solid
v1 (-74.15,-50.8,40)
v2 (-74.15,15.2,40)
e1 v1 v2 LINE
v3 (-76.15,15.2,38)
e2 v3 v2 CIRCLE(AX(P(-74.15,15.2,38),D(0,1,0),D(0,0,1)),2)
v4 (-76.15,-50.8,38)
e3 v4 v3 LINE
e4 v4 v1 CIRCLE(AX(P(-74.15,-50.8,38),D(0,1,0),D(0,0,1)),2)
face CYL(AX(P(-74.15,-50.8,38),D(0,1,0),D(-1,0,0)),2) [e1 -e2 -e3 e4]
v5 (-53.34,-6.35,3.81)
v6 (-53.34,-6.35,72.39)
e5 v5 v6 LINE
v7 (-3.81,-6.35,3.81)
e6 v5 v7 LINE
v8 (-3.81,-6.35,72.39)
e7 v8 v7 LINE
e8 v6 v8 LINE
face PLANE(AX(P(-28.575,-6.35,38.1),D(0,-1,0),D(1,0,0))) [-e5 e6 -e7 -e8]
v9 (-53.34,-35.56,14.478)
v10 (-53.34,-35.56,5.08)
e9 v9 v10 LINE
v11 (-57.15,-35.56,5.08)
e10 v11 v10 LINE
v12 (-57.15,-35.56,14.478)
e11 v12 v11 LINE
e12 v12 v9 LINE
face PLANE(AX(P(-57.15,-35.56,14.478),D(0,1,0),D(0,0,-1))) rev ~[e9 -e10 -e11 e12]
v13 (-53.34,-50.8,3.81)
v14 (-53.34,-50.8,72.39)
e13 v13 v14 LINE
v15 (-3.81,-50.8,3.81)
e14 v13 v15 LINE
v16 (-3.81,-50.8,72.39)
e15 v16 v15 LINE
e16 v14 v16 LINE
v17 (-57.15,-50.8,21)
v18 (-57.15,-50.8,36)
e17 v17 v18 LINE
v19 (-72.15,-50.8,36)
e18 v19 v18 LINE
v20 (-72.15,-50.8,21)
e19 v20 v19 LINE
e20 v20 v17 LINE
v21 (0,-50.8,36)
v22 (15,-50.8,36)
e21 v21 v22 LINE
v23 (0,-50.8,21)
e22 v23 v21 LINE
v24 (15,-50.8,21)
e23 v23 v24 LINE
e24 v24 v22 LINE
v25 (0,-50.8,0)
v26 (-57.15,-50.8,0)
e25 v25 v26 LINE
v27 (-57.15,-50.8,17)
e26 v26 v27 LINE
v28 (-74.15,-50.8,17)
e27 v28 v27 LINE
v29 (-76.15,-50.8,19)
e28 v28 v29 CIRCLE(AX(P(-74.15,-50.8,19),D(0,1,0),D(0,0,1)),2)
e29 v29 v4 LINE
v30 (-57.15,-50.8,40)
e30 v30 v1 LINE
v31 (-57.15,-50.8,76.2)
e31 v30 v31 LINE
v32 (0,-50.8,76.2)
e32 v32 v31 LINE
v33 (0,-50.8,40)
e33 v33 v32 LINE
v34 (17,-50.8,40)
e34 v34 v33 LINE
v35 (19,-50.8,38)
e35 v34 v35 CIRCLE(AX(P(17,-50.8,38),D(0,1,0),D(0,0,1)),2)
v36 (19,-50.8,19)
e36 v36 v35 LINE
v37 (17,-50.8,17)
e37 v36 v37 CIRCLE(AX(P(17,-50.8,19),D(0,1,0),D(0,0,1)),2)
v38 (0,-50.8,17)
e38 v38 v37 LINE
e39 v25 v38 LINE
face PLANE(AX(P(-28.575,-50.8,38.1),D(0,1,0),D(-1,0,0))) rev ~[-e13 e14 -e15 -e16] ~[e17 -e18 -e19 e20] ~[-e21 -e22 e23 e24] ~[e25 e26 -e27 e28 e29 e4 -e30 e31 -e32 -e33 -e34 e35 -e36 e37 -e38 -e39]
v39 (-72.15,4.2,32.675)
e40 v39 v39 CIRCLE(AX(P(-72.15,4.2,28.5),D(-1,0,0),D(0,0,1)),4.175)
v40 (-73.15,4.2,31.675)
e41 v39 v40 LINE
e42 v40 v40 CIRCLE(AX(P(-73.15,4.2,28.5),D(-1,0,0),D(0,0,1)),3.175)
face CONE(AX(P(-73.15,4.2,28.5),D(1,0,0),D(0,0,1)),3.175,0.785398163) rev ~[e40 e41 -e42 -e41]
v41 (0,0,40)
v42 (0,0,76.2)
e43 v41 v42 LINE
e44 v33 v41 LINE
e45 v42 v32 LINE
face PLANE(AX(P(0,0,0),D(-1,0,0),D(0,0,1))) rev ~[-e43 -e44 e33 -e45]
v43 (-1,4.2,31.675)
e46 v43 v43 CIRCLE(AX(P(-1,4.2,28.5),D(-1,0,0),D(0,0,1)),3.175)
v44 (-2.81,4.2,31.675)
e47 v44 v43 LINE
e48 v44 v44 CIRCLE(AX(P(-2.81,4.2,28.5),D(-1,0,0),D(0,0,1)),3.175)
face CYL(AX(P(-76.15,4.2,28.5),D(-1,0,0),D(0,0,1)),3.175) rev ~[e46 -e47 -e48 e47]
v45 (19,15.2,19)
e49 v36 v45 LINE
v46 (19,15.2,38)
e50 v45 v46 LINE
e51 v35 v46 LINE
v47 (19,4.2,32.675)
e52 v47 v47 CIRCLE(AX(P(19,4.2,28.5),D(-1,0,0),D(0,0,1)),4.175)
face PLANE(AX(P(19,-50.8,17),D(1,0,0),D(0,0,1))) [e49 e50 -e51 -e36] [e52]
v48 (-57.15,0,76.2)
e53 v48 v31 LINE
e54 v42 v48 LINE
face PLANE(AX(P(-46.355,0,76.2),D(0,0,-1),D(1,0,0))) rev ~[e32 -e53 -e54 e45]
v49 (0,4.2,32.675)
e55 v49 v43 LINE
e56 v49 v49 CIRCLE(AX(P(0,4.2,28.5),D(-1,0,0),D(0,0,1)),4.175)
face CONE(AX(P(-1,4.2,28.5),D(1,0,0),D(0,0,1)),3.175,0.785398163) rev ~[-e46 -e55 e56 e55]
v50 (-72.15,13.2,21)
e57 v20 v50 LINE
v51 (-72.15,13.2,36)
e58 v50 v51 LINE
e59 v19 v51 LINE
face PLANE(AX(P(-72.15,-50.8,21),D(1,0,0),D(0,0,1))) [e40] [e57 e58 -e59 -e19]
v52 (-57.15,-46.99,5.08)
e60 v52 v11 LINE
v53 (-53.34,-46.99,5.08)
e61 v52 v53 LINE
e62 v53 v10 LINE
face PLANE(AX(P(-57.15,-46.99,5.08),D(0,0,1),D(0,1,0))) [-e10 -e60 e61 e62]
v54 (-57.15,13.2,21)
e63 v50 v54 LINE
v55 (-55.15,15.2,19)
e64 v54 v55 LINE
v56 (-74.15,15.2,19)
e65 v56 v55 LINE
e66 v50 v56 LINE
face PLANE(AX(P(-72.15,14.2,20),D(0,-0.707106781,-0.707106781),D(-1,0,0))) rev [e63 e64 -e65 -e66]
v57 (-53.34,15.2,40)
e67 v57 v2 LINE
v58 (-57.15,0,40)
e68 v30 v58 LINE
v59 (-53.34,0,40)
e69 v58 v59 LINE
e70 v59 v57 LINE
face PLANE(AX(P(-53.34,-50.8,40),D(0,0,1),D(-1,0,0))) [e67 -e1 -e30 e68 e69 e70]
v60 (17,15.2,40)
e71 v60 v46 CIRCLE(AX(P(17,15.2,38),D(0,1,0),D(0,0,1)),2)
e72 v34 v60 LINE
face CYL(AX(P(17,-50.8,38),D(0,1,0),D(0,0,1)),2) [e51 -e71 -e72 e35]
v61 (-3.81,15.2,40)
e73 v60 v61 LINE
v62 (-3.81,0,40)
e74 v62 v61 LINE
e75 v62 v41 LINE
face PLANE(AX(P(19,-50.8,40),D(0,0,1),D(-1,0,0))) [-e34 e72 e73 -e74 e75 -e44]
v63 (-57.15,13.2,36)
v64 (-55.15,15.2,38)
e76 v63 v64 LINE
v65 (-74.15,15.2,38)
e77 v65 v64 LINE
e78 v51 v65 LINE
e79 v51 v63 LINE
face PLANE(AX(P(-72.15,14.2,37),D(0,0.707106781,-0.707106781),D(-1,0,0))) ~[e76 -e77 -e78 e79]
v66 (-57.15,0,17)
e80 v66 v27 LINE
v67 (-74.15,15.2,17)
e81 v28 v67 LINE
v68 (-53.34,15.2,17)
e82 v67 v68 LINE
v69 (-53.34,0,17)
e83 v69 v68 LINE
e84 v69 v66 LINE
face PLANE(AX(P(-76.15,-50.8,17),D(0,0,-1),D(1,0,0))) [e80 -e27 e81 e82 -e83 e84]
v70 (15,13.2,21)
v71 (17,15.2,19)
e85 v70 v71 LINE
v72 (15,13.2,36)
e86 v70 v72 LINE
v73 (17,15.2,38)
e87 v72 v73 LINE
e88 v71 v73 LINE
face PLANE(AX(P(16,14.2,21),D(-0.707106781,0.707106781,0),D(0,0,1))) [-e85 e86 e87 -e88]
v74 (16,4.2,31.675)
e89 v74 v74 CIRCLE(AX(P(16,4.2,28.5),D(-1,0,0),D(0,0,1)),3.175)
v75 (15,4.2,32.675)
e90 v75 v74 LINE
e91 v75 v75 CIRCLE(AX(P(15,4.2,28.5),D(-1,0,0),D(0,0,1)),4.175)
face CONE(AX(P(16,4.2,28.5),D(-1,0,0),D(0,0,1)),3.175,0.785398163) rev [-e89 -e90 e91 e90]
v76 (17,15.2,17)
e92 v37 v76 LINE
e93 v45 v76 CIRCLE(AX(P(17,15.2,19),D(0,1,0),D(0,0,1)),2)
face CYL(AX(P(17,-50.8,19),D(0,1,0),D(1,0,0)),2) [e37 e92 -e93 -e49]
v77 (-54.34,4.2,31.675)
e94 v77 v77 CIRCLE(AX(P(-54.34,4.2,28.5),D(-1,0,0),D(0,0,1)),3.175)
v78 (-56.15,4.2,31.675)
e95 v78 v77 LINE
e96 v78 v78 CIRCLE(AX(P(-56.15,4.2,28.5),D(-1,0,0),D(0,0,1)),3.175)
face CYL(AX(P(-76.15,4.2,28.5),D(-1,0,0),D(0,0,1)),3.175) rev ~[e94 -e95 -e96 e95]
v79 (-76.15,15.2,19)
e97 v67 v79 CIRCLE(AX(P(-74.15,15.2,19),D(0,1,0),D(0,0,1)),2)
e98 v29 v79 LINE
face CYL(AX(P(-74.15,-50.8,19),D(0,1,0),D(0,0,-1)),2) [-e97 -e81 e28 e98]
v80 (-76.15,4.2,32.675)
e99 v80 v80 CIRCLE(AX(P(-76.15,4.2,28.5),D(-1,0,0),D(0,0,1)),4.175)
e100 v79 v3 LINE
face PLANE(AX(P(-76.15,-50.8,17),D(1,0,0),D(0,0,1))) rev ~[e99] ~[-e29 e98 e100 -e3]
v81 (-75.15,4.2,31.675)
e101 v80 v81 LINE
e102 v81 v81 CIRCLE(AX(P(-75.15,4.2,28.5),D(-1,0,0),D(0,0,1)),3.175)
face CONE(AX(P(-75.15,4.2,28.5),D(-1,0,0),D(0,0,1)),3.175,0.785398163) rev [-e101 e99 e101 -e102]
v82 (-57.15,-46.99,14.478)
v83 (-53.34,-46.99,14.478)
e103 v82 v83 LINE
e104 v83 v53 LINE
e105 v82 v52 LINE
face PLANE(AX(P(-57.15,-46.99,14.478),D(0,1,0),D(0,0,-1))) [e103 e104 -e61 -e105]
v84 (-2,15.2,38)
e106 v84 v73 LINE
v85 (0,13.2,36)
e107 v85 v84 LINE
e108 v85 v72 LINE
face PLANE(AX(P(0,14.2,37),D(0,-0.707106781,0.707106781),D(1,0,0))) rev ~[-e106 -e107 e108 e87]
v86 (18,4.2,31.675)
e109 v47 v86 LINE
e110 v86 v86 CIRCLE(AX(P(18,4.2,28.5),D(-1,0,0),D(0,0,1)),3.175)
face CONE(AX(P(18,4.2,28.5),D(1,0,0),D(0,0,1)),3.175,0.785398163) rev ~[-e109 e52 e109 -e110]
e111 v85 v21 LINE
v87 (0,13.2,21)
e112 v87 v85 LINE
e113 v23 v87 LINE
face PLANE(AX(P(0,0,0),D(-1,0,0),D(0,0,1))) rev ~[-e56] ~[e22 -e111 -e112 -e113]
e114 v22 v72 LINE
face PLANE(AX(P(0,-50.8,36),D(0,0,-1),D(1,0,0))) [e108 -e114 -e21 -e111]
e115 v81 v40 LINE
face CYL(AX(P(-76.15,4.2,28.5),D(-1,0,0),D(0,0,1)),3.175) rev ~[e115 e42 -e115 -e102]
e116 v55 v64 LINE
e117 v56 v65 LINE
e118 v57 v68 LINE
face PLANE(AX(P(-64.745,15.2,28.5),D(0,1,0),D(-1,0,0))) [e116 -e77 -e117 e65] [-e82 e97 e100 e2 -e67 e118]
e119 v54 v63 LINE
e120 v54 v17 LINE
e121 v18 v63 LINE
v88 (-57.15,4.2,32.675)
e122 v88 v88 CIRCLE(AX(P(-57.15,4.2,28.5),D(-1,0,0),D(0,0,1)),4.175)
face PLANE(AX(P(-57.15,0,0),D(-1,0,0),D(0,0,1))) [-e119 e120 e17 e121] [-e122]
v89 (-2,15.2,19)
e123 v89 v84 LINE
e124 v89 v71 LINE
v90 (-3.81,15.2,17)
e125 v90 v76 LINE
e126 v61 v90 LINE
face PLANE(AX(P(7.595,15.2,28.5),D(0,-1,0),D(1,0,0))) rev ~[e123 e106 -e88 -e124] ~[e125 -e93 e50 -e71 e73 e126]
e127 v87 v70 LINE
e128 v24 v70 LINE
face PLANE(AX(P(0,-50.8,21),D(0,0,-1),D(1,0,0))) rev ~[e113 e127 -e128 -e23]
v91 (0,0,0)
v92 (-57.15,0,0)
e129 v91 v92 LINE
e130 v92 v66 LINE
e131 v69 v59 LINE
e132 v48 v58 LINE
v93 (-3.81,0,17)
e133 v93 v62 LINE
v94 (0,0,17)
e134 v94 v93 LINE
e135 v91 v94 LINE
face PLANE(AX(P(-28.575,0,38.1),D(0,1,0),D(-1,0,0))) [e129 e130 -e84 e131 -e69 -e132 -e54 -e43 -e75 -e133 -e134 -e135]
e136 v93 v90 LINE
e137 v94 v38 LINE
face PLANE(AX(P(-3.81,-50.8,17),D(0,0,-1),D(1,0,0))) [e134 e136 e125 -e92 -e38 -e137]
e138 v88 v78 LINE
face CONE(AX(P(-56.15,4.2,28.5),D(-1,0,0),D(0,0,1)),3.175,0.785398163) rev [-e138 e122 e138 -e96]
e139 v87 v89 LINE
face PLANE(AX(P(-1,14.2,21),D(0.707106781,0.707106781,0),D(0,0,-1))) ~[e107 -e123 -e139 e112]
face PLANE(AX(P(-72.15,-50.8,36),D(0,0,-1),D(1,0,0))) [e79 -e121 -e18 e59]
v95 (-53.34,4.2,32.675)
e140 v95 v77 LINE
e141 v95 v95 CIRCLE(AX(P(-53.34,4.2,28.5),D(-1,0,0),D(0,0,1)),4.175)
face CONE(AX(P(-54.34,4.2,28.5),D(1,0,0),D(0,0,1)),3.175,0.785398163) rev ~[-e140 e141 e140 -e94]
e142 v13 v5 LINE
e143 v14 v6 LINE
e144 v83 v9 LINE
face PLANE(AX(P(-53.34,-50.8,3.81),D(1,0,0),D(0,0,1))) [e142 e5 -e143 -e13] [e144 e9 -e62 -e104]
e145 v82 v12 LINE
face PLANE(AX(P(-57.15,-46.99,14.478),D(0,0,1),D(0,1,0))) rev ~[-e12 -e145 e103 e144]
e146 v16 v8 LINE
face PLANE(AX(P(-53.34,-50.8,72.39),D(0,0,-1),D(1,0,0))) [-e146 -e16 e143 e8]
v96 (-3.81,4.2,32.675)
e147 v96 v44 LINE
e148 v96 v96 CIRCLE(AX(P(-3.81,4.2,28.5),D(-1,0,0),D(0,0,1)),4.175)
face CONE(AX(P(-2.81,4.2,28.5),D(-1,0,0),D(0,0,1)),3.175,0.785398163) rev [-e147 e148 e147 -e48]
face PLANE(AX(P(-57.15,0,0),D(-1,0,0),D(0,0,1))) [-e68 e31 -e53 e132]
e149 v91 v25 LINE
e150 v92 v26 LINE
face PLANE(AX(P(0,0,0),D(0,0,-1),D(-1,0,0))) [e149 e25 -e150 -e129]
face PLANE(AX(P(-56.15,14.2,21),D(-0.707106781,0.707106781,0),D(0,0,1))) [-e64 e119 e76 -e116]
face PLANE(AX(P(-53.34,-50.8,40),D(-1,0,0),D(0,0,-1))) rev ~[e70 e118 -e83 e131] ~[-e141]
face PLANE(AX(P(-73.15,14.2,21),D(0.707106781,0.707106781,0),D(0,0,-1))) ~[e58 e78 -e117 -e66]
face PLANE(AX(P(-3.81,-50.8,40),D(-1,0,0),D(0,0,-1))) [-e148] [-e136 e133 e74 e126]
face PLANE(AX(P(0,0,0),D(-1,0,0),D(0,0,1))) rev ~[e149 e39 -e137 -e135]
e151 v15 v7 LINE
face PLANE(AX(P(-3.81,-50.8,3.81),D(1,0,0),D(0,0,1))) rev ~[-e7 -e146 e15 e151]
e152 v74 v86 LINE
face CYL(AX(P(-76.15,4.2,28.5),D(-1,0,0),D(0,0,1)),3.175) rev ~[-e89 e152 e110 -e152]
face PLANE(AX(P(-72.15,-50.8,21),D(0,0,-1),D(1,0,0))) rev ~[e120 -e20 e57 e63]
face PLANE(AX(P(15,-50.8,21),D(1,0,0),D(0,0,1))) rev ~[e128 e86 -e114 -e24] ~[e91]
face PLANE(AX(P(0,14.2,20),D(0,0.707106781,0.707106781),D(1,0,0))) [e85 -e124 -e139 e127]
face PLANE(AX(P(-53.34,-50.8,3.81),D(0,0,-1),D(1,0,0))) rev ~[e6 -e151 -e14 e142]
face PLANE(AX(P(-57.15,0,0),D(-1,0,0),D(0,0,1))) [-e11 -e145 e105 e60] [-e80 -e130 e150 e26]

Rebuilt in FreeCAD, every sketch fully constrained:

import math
import FreeCAD as App
import Part
import Sketcher
from FreeCAD import Vector
Q = App.Units.Quantity


def edges_at(feature, points):
    """Names of the edges that pass closest to the given points."""
    edges = feature.Shape.Edges
    near = lambda p: min(range(len(edges)), key=lambda i: edges[i].distToShape(Part.Vertex(*p))[0])
    return sorted({f"Edge{near(p) + 1}" for p in points})

doc = App.newDocument("Part")
params = doc.addObject("Spreadsheet::Sheet", "Params")
for row, (alias, value) in enumerate([
    ("sketch1_height", "3 in"),
    ("sketch1_width", "2.25 in"),
    ("pad1_length", "2 in"),
    ("sketch2_height", "2.7 in"),
    ("sketch2_width", "1.95 in"),
    ("pocket1_length", "1.75 in"),
    ("sketch3_width", "0.45 in"),
    ("sketch3_height", "0.37 in"),
    ("sketch4_width", "0.1 in"),
    ("sketch4_width2", "1.45 in"),
    ("pad2_length", "2.25 in"),
    ("sketch9_radius", "0.35 in"),
    ("sketch10_width", "0.3 in"),
    ("pad3_length", "1.75 in"),
    ("pad4_length", "66 mm"),
    ("sketch12_diameter", "0.25 in"),
    ("chamfer_size", "2 mm"),
    ("fillet_radius", "2 mm"),
    ("chamfer2_size", "1 mm"),
    ("sketch13_width", "1.35 in"),
], start=1):
    params.set(f"A{row}", alias)
    params.set(f"B{row}", "=" + value)
    params.setAlias(f"B{row}", alias)

body = doc.addObject("PartDesign::Body", "Body")

sketch1 = body.newObject("Sketcher::SketchObject", "Sketch")
sketch1.AttachmentSupport = (doc.getObject("XZ_Plane"), [""])
sketch1.MapMode = "FlatFace"
sketch1.addGeometry([
    Part.LineSegment(Vector(0, 76, 0), Vector(0, 0, 0)),
    Part.LineSegment(Vector(0, 0, 0), Vector(-57, 0, 0)),
    Part.LineSegment(Vector(-57, 0, 0), Vector(-57, 76, 0)),
    Part.LineSegment(Vector(-57, 76, 0), Vector(0, 76, 0)),
], False)
sketch1.addConstraint([
    Sketcher.Constraint("Coincident", 0, 2, 1, 1),
    Sketcher.Constraint("Coincident", 1, 2, 2, 1),
    Sketcher.Constraint("Coincident", 2, 2, 3, 1),
    Sketcher.Constraint("Coincident", 3, 2, 0, 1),
    Sketcher.Constraint("Vertical", 0),
    Sketcher.Constraint("Horizontal", 1),
    Sketcher.Constraint("Vertical", 2),
    Sketcher.Constraint("Horizontal", 3),
    Sketcher.Constraint("Coincident", 0, 2, -1, 1),
    Sketcher.Constraint("DistanceY", 0, 2, 0, 1, Q("3 in")),
    Sketcher.Constraint("DistanceX", 1, 2, 1, 1, Q("2.25 in")),
])
sketch1.setExpression("Constraints[9]", "Params.sketch1_height")
sketch1.setExpression("Constraints[10]", "Params.sketch1_width")
pad1 = body.newObject("PartDesign::Pad", "Pad")
pad1.Profile = sketch1
pad1.setExpression("Length", "Params.pad1_length")

sketch2 = body.newObject("Sketcher::SketchObject", "Sketch001")
sketch2.AttachmentSupport = (doc.getObject("XZ_Plane"), [""])
sketch2.MapMode = "FlatFace"
sketch2.AttachmentOffset = App.Placement(Vector(0, 0, 2 * 25.4), App.Rotation())
sketch2.addGeometry([
    Part.LineSegment(Vector(-53, 72, 0), Vector(-53, 4, 0)),
    Part.LineSegment(Vector(-53, 4, 0), Vector(-4, 4, 0)),
    Part.LineSegment(Vector(-4, 4, 0), Vector(-4, 72, 0)),
    Part.LineSegment(Vector(-4, 72, 0), Vector(-53, 72, 0)),
], False)
sketch2.addConstraint([
    Sketcher.Constraint("Coincident", 0, 2, 1, 1),
    Sketcher.Constraint("Coincident", 1, 2, 2, 1),
    Sketcher.Constraint("Coincident", 2, 2, 3, 1),
    Sketcher.Constraint("Coincident", 3, 2, 0, 1),
    Sketcher.Constraint("Vertical", 0),
    Sketcher.Constraint("Horizontal", 1),
    Sketcher.Constraint("Vertical", 2),
    Sketcher.Constraint("Horizontal", 3),
    Sketcher.Constraint("DistanceY", 0, 2, 0, 1, Q("2.7 in")),
    Sketcher.Constraint("DistanceX", 1, 1, 1, 2, Q("1.95 in")),
    Sketcher.Constraint("DistanceX", 0, 2, -1, 1, Q("2.1 in")),
    Sketcher.Constraint("DistanceY", -1, 1, 0, 2, Q("0.15 in")),
])
sketch2.setExpression("Constraints[8]", "Params.sketch2_height")
sketch2.setExpression("Constraints[9]", "Params.sketch2_width")
pocket1 = body.newObject("PartDesign::Pocket", "Pocket")
pocket1.Profile = sketch2
pocket1.setExpression("Length", "Params.pocket1_length")

sketch3 = body.newObject("Sketcher::SketchObject", "Sketch002")
sketch3.AttachmentSupport = (doc.getObject("YZ_Plane"), [""])
sketch3.MapMode = "FlatFace"
sketch3.AttachmentOffset = App.Placement(Vector(0, 0, -2.25 * 25.4), App.Rotation())
sketch3.addGeometry([
    Part.LineSegment(Vector(-36, 14, 0), Vector(-47, 14, 0)),
    Part.LineSegment(Vector(-47, 14, 0), Vector(-47, 5, 0)),
    Part.LineSegment(Vector(-47, 5, 0), Vector(-36, 5, 0)),
    Part.LineSegment(Vector(-36, 5, 0), Vector(-36, 14, 0)),
], False)
sketch3.addConstraint([
    Sketcher.Constraint("Coincident", 0, 2, 1, 1),
    Sketcher.Constraint("Coincident", 1, 2, 2, 1),
    Sketcher.Constraint("Coincident", 2, 2, 3, 1),
    Sketcher.Constraint("Coincident", 3, 2, 0, 1),
    Sketcher.Constraint("Horizontal", 0),
    Sketcher.Constraint("Vertical", 1),
    Sketcher.Constraint("Horizontal", 2),
    Sketcher.Constraint("Vertical", 3),
    Sketcher.Constraint("DistanceX", 0, 2, 0, 1, Q("0.45 in")),
    Sketcher.Constraint("DistanceY", 1, 2, 1, 1, Q("0.37 in")),
    Sketcher.Constraint("DistanceY", -1, 1, 1, 2, Q("0.2 in")),
    Sketcher.Constraint("DistanceX", 2, 2, -1, 1, Q("1.4 in")),
])
sketch3.setExpression("Constraints[8]", "Params.sketch3_width")
sketch3.setExpression("Constraints[9]", "Params.sketch3_height")
pocket2 = body.newObject("PartDesign::Pocket", "Pocket001")
pocket2.Profile = sketch3
pocket2.Type = "UpToFirst"
pocket2.Reversed = True

sketch4 = body.newObject("Sketcher::SketchObject", "Sketch003")
sketch4.AttachmentSupport = (doc.getObject("YZ_Plane"), [""])
sketch4.MapMode = "FlatFace"
sketch4.AttachmentOffset = App.Placement(Vector(0, 0, -2.25 * 25.4), App.Rotation())
sketch4.addGeometry([
    Part.LineSegment(Vector(0, 46.5, 0), Vector(36.8, 46.5, 0)),
    Part.LineSegment(Vector(36.8, 46.5, 0), Vector(36.8, 0, 0)),
    Part.LineSegment(Vector(36.8, 0, 0), Vector(34.3, 0, 0)),
    Part.LineSegment(Vector(34.3, 0, 0), Vector(34.3, 44, 0)),
    Part.LineSegment(Vector(34.3, 44, 0), Vector(0, 44, 0)),
    Part.LineSegment(Vector(0, 44, 0), Vector(0, 46.5, 0)),
], False)
sketch4.addConstraint([
    Sketcher.Constraint("Coincident", 0, 2, 1, 1),
    Sketcher.Constraint("Coincident", 1, 2, 2, 1),
    Sketcher.Constraint("Coincident", 2, 2, 3, 1),
    Sketcher.Constraint("Coincident", 3, 2, 4, 1),
    Sketcher.Constraint("Coincident", 4, 2, 5, 1),
    Sketcher.Constraint("Coincident", 5, 2, 0, 1),
    Sketcher.Constraint("Horizontal", 0),
    Sketcher.Constraint("Vertical", 1),
    Sketcher.Constraint("Horizontal", 2),
    Sketcher.Constraint("Vertical", 3),
    Sketcher.Constraint("Horizontal", 4),
    Sketcher.Constraint("Vertical", 5),
    Sketcher.Constraint("PointOnObject", 1, 2, -1),
    Sketcher.Constraint("PointOnObject", 4, 2, -2),
    Sketcher.Constraint("Equal", 2, 5),
    Sketcher.Constraint("DistanceX", 2, 2, 2, 1, Q("0.1 in")),
    Sketcher.Constraint("DistanceX", 0, 1, 0, 2, Q("1.45 in")),
    Sketcher.Constraint("DistanceY", 1, 2, 1, 1, Q("46.54 mm")),
])
sketch4.setExpression("Constraints[15]", "Params.sketch4_width")
sketch4.setExpression("Constraints[16]", "Params.sketch4_width2")
pad2 = body.newObject("PartDesign::Pad", "Pad001")
pad2.Profile = sketch4
pad2.setExpression("Length", "Params.pad2_length")

sketch5 = body.newObject("Sketcher::SketchObject", "Sketch004")
sketch5.AttachmentSupport = (doc.getObject("XZ_Plane"), [""])
sketch5.MapMode = "FlatFace"
sketch5.AttachmentOffset = App.Placement(Vector(0, 0, -1.45 * 25.4), App.Rotation())
sketch5.addGeometry(Part.Circle(Vector(-44.1, 7.8, 0), Vector(0, 0, 1), 1.6), False)
sketch5.addConstraint([
    Sketcher.Constraint("Diameter", 0, Q("3.2 mm")),
    Sketcher.Constraint("DistanceX", 0, 3, -1, 1, Q("44.075 mm")),
    Sketcher.Constraint("DistanceY", -1, 1, 0, 3, Q("7.77 mm")),
])
pocket3 = body.newObject("PartDesign::Pocket", "Pocket002")
pocket3.Profile = sketch5
pocket3.Type = "UpToFirst"
pocket3.Reversed = True

sketch6 = body.newObject("Sketcher::SketchObject", "Sketch005")
sketch6.AttachmentSupport = (doc.getObject("XZ_Plane"), [""])
sketch6.MapMode = "FlatFace"
sketch6.AttachmentOffset = App.Placement(Vector(0, 0, -1.45 * 25.4), App.Rotation())
sketch6.addGeometry(Part.Circle(Vector(-13.1, 7.8, 0), Vector(0, 0, 1), 1.6), False)
sketch6.addConstraint([
    Sketcher.Constraint("Diameter", 0, Q("3.2 mm")),
    Sketcher.Constraint("DistanceX", 0, 3, -1, 1, Q("13.075 mm")),
    Sketcher.Constraint("DistanceY", -1, 1, 0, 3, Q("7.77 mm")),
])
pocket4 = body.newObject("PartDesign::Pocket", "Pocket003")
pocket4.Profile = sketch6
pocket4.Type = "UpToFirst"
pocket4.Reversed = True

sketch7 = body.newObject("Sketcher::SketchObject", "Sketch006")
sketch7.AttachmentSupport = (doc.getObject("XZ_Plane"), [""])
sketch7.MapMode = "FlatFace"
sketch7.AttachmentOffset = App.Placement(Vector(0, 0, -1.45 * 25.4), App.Rotation())
sketch7.addGeometry(Part.Circle(Vector(-13.1, 38.8, 0), Vector(0, 0, 1), 1.6), False)
sketch7.addConstraint([
    Sketcher.Constraint("Diameter", 0, Q("3.2 mm")),
    Sketcher.Constraint("DistanceX", 0, 3, -1, 1, Q("13.075 mm")),
    Sketcher.Constraint("DistanceY", -1, 1, 0, 3, Q("38.77 mm")),
])
pocket5 = body.newObject("PartDesign::Pocket", "Pocket004")
pocket5.Profile = sketch7
pocket5.Type = "UpToFirst"
pocket5.Reversed = True

sketch8 = body.newObject("Sketcher::SketchObject", "Sketch007")
sketch8.AttachmentSupport = (doc.getObject("XZ_Plane"), [""])
sketch8.MapMode = "FlatFace"
sketch8.AttachmentOffset = App.Placement(Vector(0, 0, -1.45 * 25.4), App.Rotation())
sketch8.addGeometry(Part.Circle(Vector(-44.1, 38.8, 0), Vector(0, 0, 1), 1.6), False)
sketch8.addConstraint([
    Sketcher.Constraint("Diameter", 0, Q("3.2 mm")),
    Sketcher.Constraint("DistanceX", 0, 3, -1, 1, Q("44.075 mm")),
    Sketcher.Constraint("DistanceY", -1, 1, 0, 3, Q("38.77 mm")),
])
pocket6 = body.newObject("PartDesign::Pocket", "Pocket005")
pocket6.Profile = sketch8
pocket6.Type = "UpToFirst"
pocket6.Reversed = True

sketch9 = body.newObject("Sketcher::SketchObject", "Sketch008")
sketch9.AttachmentSupport = (doc.getObject("XZ_Plane"), [""])
sketch9.MapMode = "FlatFace"
sketch9.AttachmentOffset = App.Placement(Vector(0, 0, -1.45 * 25.4), App.Rotation())
sketch9.addGeometry([
    Part.LineSegment(Vector(-20, 0, 0), Vector(-37, 0, 0)),
    Part.LineSegment(Vector(-37, 0, 0), Vector(-37, 23, 0)),
    Part.ArcOfCircle(Part.Circle(Vector(-29, 23, 0), Vector(0, 0, 1), 9), math.radians(0), math.radians(180)),
    Part.LineSegment(Vector(-20, 23, 0), Vector(-20, 0, 0)),
], False)
sketch9.addConstraint([
    Sketcher.Constraint("Coincident", 0, 2, 1, 1),
    Sketcher.Constraint("Tangent", 1, 2, 2, 2),
    Sketcher.Constraint("Tangent", 2, 1, 3, 1),
    Sketcher.Constraint("Coincident", 3, 2, 0, 1),
    Sketcher.Constraint("Horizontal", 0),
    Sketcher.Constraint("Vertical", 1),
    Sketcher.Constraint("Vertical", 3),
    Sketcher.Constraint("PointOnObject", 0, 2, -1),
    Sketcher.Constraint("Radius", 2, Q("0.35 in")),
    Sketcher.Constraint("DistanceX", 2, 3, -1, 1, Q("1.125 in")),
    Sketcher.Constraint("DistanceY", 1, 1, 1, 2, Q("23.27 mm")),
])
sketch9.setExpression("Constraints[8]", "Params.sketch9_radius")
pocket7 = body.newObject("PartDesign::Pocket", "Pocket006")
pocket7.Profile = sketch9
pocket7.Type = "UpToFirst"
pocket7.Reversed = True

sketch10 = body.newObject("Sketcher::SketchObject", "Sketch009")
sketch10.AttachmentSupport = (doc.getObject("XZ_Plane"), [""])
sketch10.MapMode = "FlatFace"
sketch10.addGeometry([
    Part.LineSegment(Vector(-46, 47, 0), Vector(-46, 76, 0)),
    Part.LineSegment(Vector(-46, 76, 0), Vector(-39, 76, 0)),
    Part.LineSegment(Vector(-39, 76, 0), Vector(-39, 47, 0)),
    Part.LineSegment(Vector(-39, 47, 0), Vector(-46, 47, 0)),
    Part.LineSegment(Vector(-18, 47, 0), Vector(-18, 76, 0)),
    Part.LineSegment(Vector(-18, 76, 0), Vector(-11, 76, 0)),
    Part.LineSegment(Vector(-11, 76, 0), Vector(-11, 47, 0)),
    Part.LineSegment(Vector(-11, 47, 0), Vector(-18, 47, 0)),
], False)
sketch10.addConstraint([
    Sketcher.Constraint("Coincident", 0, 2, 1, 1),
    Sketcher.Constraint("Coincident", 1, 2, 2, 1),
    Sketcher.Constraint("Coincident", 2, 2, 3, 1),
    Sketcher.Constraint("Coincident", 3, 2, 0, 1),
    Sketcher.Constraint("Coincident", 4, 2, 5, 1),
    Sketcher.Constraint("Coincident", 5, 2, 6, 1),
    Sketcher.Constraint("Coincident", 6, 2, 7, 1),
    Sketcher.Constraint("Coincident", 7, 2, 4, 1),
    Sketcher.Constraint("Vertical", 0),
    Sketcher.Constraint("Horizontal", 1),
    Sketcher.Constraint("Vertical", 2),
    Sketcher.Constraint("Horizontal", 3),
    Sketcher.Constraint("Vertical", 4),
    Sketcher.Constraint("Horizontal", 5),
    Sketcher.Constraint("Vertical", 6),
    Sketcher.Constraint("Horizontal", 7),
    Sketcher.Constraint("Horizontal", 1, 2, 4, 2),
    Sketcher.Constraint("Horizontal", 3, 2, 6, 2),
    Sketcher.Constraint("Equal", 3, 5),
    Sketcher.Constraint("DistanceX", 1, 1, 1, 2, Q("0.3 in")),
    Sketcher.Constraint("DistanceY", -1, 1, 0, 2, Q("3 in")),
    Sketcher.Constraint("DistanceX", 1, 2, 4, 2, Q("0.8 in")),
    Sketcher.Constraint("DistanceX", 0, 2, -1, 1, Q("1.825 in")),
    Sketcher.Constraint("DistanceY", 0, 1, 0, 2, Q("29.66 mm")),
])
sketch10.setExpression("Constraints[19]", "Params.sketch10_width")
pad3 = body.newObject("PartDesign::Pad", "Pad002")
pad3.Profile = sketch10
pad3.setExpression("Length", "Params.pad3_length")
pad3.Reversed = True

sketch11 = body.newObject("Sketcher::SketchObject", "Sketch010")
sketch11.AttachmentSupport = (doc.getObject("XZ_Plane"), [""])
sketch11.MapMode = "FlatFace"
sketch11.AttachmentOffset = App.Placement(Vector(0, 0, 2 * 25.4), App.Rotation())
sketch11.addGeometry([
    Part.LineSegment(Vector(-4, 40, 0), Vector(-4, 17, 0)),
    Part.LineSegment(Vector(-4, 17, 0), Vector(19, 17, 0)),
    Part.LineSegment(Vector(19, 17, 0), Vector(19, 40, 0)),
    Part.LineSegment(Vector(19, 40, 0), Vector(-4, 40, 0)),
    Part.LineSegment(Vector(15, 21, 0), Vector(0, 21, 0)),
    Part.LineSegment(Vector(0, 21, 0), Vector(0, 36, 0)),
    Part.LineSegment(Vector(0, 36, 0), Vector(15, 36, 0)),
    Part.LineSegment(Vector(15, 36, 0), Vector(15, 21, 0)),
    Part.LineSegment(Vector(-76, 17, 0), Vector(-53, 17, 0)),
    Part.LineSegment(Vector(-53, 17, 0), Vector(-53, 40, 0)),
    Part.LineSegment(Vector(-53, 40, 0), Vector(-76, 40, 0)),
    Part.LineSegment(Vector(-76, 40, 0), Vector(-76, 17, 0)),
    Part.LineSegment(Vector(-72, 21, 0), Vector(-72, 36, 0)),
    Part.LineSegment(Vector(-72, 36, 0), Vector(-57, 36, 0)),
    Part.LineSegment(Vector(-57, 36, 0), Vector(-57, 21, 0)),
    Part.LineSegment(Vector(-57, 21, 0), Vector(-72, 21, 0)),
], False)
sketch11.addConstraint([
    Sketcher.Constraint("Coincident", 0, 2, 1, 1),
    Sketcher.Constraint("Coincident", 1, 2, 2, 1),
    Sketcher.Constraint("Coincident", 2, 2, 3, 1),
    Sketcher.Constraint("Coincident", 3, 2, 0, 1),
    Sketcher.Constraint("Coincident", 4, 2, 5, 1),
    Sketcher.Constraint("Coincident", 5, 2, 6, 1),
    Sketcher.Constraint("Coincident", 6, 2, 7, 1),
    Sketcher.Constraint("Coincident", 7, 2, 4, 1),
    Sketcher.Constraint("Coincident", 8, 2, 9, 1),
    Sketcher.Constraint("Coincident", 9, 2, 10, 1),
    Sketcher.Constraint("Coincident", 10, 2, 11, 1),
    Sketcher.Constraint("Coincident", 11, 2, 8, 1),
    Sketcher.Constraint("Coincident", 12, 2, 13, 1),
    Sketcher.Constraint("Coincident", 13, 2, 14, 1),
    Sketcher.Constraint("Coincident", 14, 2, 15, 1),
    Sketcher.Constraint("Coincident", 15, 2, 12, 1),
    Sketcher.Constraint("Vertical", 0),
    Sketcher.Constraint("Horizontal", 1),
    Sketcher.Constraint("Vertical", 2),
    Sketcher.Constraint("Horizontal", 3),
    Sketcher.Constraint("Horizontal", 4),
    Sketcher.Constraint("Vertical", 5),
    Sketcher.Constraint("Horizontal", 6),
    Sketcher.Constraint("Vertical", 7),
    Sketcher.Constraint("Horizontal", 8),
    Sketcher.Constraint("Vertical", 9),
    Sketcher.Constraint("Horizontal", 10),
    Sketcher.Constraint("Vertical", 11),
    Sketcher.Constraint("Vertical", 12),
    Sketcher.Constraint("Horizontal", 13),
    Sketcher.Constraint("Vertical", 14),
    Sketcher.Constraint("Horizontal", 15),
    Sketcher.Constraint("PointOnObject", 4, 2, -2),
    Sketcher.Constraint("Horizontal", 1, 2, 8, 2),
    Sketcher.Constraint("Horizontal", 3, 2, 9, 2),
    Sketcher.Constraint("Horizontal", 6, 2, 12, 2),
    Sketcher.Constraint("Horizontal", 7, 2, 14, 2),
    Sketcher.Constraint("Equal", 3, 8),
    Sketcher.Constraint("Equal", 6, 13),
    Sketcher.Constraint("Equal", 15, 5),
    Sketcher.Constraint("DistanceX", 8, 2, -1, 1, Q("2.1 in")),
    Sketcher.Constraint("DistanceX", 0, 2, -1, 1, Q("0.15 in")),
    Sketcher.Constraint("DistanceX", 13, 2, -1, 1, Q("2.25 in")),
    Sketcher.Constraint("DistanceX", 1, 1, 1, 2, Q("22.81 mm")),
    Sketcher.Constraint("DistanceX", 4, 2, 4, 1, Q("15 mm")),
    Sketcher.Constraint("DistanceY", 0, 2, 0, 1, Q("23 mm")),
    Sketcher.Constraint("DistanceY", -1, 1, 0, 2, Q("17 mm")),
    Sketcher.Constraint("DistanceY", -1, 1, 4, 2, Q("21 mm")),
])
pad4 = body.newObject("PartDesign::Pad", "Pad003")
pad4.Profile = sketch11
pad4.setExpression("Length", "Params.pad4_length")
pad4.Reversed = True

sketch12 = body.newObject("Sketcher::SketchObject", "Sketch011")
sketch12.AttachmentSupport = (doc.getObject("YZ_Plane"), [""])
sketch12.MapMode = "FlatFace"
sketch12.AttachmentOffset = App.Placement(Vector(0, 0, -76.15), App.Rotation())
sketch12.addGeometry(Part.Circle(Vector(4.2, 28.5, 0), Vector(0, 0, 1), 3.2), False)
sketch12.addConstraint([
    Sketcher.Constraint("Diameter", 0, Q("0.25 in")),
    Sketcher.Constraint("DistanceX", -1, 1, 0, 3, Q("4.2 mm")),
    Sketcher.Constraint("DistanceY", -1, 1, 0, 3, Q("28.5 mm")),
])
sketch12.setExpression("Constraints[0]", "Params.sketch12_diameter")
pocket8 = body.newObject("PartDesign::Pocket", "Pocket007")
pocket8.Profile = sketch12
pocket8.Type = "ThroughAll"
pocket8.Reversed = True
doc.recompute()

chamfer = body.newObject("PartDesign::Chamfer", "Chamfer")
chamfer.Base = (pocket8, edges_at(pocket8, [
    (0, 15.2, 28.5),
    (7.5, 15.2, 36),
    (15, 15.2, 28.5),
    (7.5, 15.2, 21),
    (-64.65, 15.2, 36),
    (-72.15, 15.2, 28.5),
    (-64.65, 15.2, 21),
    (-57.15, 15.2, 28.5),
]))
chamfer.setExpression("Size", "Params.chamfer_size")
doc.recompute()

fillet = body.newObject("PartDesign::Fillet", "Fillet")
fillet.Base = (chamfer, edges_at(chamfer, [
    (19, -17.8, 17),
    (19, -17.8, 40),
    (-76.15, -17.8, 40),
    (-76.15, -17.8, 17),
]))
fillet.setExpression("Radius", "Params.fillet_radius")
doc.recompute()

chamfer2 = body.newObject("PartDesign::Chamfer", "Chamfer001")
chamfer2.Base = (fillet, edges_at(fillet, [
    (-57.15, 4.2, 25.325),
    (15, 4.2, 25.325),
    (0, 4.2, 25.325),
    (-3.81, 4.2, 25.325),
    (-53.34, 4.2, 25.325),
    (-72.15, 4.2, 25.325),
    (19, 4.2, 25.325),
    (-76.15, 4.2, 25.325),
]))
chamfer2.setExpression("Size", "Params.chamfer2_size")

sketch13 = body.newObject("Sketcher::SketchObject", "Sketch012")
sketch13.AttachmentSupport = (doc.getObject("YZ_Plane"), [""])
sketch13.MapMode = "FlatFace"
sketch13.addGeometry([
    Part.LineSegment(Vector(0, 44, 0), Vector(34, 44, 0)),
    Part.LineSegment(Vector(34, 44, 0), Vector(34, 0, 0)),
    Part.LineSegment(Vector(34, 0, 0), Vector(52, 0, 0)),
    Part.LineSegment(Vector(52, 0, 0), Vector(52, 81, 0)),
    Part.LineSegment(Vector(52, 81, 0), Vector(0, 81, 0)),
    Part.LineSegment(Vector(0, 81, 0), Vector(0, 44, 0)),
], False)
sketch13.addConstraint([
    Sketcher.Constraint("Coincident", 0, 2, 1, 1),
    Sketcher.Constraint("Coincident", 1, 2, 2, 1),
    Sketcher.Constraint("Coincident", 2, 2, 3, 1),
    Sketcher.Constraint("Coincident", 3, 2, 4, 1),
    Sketcher.Constraint("Coincident", 4, 2, 5, 1),
    Sketcher.Constraint("Coincident", 5, 2, 0, 1),
    Sketcher.Constraint("Horizontal", 0),
    Sketcher.Constraint("Vertical", 1),
    Sketcher.Constraint("Horizontal", 2),
    Sketcher.Constraint("Vertical", 3),
    Sketcher.Constraint("Horizontal", 4),
    Sketcher.Constraint("Vertical", 5),
    Sketcher.Constraint("PointOnObject", 1, 2, -1),
    Sketcher.Constraint("PointOnObject", 4, 2, -2),
    Sketcher.Constraint("DistanceX", 0, 1, 0, 2, Q("1.35 in")),
    Sketcher.Constraint("DistanceY", 3, 1, 3, 2, Q("3.1967 in")),
    Sketcher.Constraint("DistanceY", 1, 2, 1, 1, Q("44 mm")),
    Sketcher.Constraint("DistanceX", 2, 1, 2, 2, Q("17.309342 mm")),
])
sketch13.setExpression("Constraints[14]", "Params.sketch13_width")
pocket9 = body.newObject("PartDesign::Pocket", "Pocket008")
pocket9.Profile = sketch13
pocket9.Type = "ThroughAll"

doc.recompute()
